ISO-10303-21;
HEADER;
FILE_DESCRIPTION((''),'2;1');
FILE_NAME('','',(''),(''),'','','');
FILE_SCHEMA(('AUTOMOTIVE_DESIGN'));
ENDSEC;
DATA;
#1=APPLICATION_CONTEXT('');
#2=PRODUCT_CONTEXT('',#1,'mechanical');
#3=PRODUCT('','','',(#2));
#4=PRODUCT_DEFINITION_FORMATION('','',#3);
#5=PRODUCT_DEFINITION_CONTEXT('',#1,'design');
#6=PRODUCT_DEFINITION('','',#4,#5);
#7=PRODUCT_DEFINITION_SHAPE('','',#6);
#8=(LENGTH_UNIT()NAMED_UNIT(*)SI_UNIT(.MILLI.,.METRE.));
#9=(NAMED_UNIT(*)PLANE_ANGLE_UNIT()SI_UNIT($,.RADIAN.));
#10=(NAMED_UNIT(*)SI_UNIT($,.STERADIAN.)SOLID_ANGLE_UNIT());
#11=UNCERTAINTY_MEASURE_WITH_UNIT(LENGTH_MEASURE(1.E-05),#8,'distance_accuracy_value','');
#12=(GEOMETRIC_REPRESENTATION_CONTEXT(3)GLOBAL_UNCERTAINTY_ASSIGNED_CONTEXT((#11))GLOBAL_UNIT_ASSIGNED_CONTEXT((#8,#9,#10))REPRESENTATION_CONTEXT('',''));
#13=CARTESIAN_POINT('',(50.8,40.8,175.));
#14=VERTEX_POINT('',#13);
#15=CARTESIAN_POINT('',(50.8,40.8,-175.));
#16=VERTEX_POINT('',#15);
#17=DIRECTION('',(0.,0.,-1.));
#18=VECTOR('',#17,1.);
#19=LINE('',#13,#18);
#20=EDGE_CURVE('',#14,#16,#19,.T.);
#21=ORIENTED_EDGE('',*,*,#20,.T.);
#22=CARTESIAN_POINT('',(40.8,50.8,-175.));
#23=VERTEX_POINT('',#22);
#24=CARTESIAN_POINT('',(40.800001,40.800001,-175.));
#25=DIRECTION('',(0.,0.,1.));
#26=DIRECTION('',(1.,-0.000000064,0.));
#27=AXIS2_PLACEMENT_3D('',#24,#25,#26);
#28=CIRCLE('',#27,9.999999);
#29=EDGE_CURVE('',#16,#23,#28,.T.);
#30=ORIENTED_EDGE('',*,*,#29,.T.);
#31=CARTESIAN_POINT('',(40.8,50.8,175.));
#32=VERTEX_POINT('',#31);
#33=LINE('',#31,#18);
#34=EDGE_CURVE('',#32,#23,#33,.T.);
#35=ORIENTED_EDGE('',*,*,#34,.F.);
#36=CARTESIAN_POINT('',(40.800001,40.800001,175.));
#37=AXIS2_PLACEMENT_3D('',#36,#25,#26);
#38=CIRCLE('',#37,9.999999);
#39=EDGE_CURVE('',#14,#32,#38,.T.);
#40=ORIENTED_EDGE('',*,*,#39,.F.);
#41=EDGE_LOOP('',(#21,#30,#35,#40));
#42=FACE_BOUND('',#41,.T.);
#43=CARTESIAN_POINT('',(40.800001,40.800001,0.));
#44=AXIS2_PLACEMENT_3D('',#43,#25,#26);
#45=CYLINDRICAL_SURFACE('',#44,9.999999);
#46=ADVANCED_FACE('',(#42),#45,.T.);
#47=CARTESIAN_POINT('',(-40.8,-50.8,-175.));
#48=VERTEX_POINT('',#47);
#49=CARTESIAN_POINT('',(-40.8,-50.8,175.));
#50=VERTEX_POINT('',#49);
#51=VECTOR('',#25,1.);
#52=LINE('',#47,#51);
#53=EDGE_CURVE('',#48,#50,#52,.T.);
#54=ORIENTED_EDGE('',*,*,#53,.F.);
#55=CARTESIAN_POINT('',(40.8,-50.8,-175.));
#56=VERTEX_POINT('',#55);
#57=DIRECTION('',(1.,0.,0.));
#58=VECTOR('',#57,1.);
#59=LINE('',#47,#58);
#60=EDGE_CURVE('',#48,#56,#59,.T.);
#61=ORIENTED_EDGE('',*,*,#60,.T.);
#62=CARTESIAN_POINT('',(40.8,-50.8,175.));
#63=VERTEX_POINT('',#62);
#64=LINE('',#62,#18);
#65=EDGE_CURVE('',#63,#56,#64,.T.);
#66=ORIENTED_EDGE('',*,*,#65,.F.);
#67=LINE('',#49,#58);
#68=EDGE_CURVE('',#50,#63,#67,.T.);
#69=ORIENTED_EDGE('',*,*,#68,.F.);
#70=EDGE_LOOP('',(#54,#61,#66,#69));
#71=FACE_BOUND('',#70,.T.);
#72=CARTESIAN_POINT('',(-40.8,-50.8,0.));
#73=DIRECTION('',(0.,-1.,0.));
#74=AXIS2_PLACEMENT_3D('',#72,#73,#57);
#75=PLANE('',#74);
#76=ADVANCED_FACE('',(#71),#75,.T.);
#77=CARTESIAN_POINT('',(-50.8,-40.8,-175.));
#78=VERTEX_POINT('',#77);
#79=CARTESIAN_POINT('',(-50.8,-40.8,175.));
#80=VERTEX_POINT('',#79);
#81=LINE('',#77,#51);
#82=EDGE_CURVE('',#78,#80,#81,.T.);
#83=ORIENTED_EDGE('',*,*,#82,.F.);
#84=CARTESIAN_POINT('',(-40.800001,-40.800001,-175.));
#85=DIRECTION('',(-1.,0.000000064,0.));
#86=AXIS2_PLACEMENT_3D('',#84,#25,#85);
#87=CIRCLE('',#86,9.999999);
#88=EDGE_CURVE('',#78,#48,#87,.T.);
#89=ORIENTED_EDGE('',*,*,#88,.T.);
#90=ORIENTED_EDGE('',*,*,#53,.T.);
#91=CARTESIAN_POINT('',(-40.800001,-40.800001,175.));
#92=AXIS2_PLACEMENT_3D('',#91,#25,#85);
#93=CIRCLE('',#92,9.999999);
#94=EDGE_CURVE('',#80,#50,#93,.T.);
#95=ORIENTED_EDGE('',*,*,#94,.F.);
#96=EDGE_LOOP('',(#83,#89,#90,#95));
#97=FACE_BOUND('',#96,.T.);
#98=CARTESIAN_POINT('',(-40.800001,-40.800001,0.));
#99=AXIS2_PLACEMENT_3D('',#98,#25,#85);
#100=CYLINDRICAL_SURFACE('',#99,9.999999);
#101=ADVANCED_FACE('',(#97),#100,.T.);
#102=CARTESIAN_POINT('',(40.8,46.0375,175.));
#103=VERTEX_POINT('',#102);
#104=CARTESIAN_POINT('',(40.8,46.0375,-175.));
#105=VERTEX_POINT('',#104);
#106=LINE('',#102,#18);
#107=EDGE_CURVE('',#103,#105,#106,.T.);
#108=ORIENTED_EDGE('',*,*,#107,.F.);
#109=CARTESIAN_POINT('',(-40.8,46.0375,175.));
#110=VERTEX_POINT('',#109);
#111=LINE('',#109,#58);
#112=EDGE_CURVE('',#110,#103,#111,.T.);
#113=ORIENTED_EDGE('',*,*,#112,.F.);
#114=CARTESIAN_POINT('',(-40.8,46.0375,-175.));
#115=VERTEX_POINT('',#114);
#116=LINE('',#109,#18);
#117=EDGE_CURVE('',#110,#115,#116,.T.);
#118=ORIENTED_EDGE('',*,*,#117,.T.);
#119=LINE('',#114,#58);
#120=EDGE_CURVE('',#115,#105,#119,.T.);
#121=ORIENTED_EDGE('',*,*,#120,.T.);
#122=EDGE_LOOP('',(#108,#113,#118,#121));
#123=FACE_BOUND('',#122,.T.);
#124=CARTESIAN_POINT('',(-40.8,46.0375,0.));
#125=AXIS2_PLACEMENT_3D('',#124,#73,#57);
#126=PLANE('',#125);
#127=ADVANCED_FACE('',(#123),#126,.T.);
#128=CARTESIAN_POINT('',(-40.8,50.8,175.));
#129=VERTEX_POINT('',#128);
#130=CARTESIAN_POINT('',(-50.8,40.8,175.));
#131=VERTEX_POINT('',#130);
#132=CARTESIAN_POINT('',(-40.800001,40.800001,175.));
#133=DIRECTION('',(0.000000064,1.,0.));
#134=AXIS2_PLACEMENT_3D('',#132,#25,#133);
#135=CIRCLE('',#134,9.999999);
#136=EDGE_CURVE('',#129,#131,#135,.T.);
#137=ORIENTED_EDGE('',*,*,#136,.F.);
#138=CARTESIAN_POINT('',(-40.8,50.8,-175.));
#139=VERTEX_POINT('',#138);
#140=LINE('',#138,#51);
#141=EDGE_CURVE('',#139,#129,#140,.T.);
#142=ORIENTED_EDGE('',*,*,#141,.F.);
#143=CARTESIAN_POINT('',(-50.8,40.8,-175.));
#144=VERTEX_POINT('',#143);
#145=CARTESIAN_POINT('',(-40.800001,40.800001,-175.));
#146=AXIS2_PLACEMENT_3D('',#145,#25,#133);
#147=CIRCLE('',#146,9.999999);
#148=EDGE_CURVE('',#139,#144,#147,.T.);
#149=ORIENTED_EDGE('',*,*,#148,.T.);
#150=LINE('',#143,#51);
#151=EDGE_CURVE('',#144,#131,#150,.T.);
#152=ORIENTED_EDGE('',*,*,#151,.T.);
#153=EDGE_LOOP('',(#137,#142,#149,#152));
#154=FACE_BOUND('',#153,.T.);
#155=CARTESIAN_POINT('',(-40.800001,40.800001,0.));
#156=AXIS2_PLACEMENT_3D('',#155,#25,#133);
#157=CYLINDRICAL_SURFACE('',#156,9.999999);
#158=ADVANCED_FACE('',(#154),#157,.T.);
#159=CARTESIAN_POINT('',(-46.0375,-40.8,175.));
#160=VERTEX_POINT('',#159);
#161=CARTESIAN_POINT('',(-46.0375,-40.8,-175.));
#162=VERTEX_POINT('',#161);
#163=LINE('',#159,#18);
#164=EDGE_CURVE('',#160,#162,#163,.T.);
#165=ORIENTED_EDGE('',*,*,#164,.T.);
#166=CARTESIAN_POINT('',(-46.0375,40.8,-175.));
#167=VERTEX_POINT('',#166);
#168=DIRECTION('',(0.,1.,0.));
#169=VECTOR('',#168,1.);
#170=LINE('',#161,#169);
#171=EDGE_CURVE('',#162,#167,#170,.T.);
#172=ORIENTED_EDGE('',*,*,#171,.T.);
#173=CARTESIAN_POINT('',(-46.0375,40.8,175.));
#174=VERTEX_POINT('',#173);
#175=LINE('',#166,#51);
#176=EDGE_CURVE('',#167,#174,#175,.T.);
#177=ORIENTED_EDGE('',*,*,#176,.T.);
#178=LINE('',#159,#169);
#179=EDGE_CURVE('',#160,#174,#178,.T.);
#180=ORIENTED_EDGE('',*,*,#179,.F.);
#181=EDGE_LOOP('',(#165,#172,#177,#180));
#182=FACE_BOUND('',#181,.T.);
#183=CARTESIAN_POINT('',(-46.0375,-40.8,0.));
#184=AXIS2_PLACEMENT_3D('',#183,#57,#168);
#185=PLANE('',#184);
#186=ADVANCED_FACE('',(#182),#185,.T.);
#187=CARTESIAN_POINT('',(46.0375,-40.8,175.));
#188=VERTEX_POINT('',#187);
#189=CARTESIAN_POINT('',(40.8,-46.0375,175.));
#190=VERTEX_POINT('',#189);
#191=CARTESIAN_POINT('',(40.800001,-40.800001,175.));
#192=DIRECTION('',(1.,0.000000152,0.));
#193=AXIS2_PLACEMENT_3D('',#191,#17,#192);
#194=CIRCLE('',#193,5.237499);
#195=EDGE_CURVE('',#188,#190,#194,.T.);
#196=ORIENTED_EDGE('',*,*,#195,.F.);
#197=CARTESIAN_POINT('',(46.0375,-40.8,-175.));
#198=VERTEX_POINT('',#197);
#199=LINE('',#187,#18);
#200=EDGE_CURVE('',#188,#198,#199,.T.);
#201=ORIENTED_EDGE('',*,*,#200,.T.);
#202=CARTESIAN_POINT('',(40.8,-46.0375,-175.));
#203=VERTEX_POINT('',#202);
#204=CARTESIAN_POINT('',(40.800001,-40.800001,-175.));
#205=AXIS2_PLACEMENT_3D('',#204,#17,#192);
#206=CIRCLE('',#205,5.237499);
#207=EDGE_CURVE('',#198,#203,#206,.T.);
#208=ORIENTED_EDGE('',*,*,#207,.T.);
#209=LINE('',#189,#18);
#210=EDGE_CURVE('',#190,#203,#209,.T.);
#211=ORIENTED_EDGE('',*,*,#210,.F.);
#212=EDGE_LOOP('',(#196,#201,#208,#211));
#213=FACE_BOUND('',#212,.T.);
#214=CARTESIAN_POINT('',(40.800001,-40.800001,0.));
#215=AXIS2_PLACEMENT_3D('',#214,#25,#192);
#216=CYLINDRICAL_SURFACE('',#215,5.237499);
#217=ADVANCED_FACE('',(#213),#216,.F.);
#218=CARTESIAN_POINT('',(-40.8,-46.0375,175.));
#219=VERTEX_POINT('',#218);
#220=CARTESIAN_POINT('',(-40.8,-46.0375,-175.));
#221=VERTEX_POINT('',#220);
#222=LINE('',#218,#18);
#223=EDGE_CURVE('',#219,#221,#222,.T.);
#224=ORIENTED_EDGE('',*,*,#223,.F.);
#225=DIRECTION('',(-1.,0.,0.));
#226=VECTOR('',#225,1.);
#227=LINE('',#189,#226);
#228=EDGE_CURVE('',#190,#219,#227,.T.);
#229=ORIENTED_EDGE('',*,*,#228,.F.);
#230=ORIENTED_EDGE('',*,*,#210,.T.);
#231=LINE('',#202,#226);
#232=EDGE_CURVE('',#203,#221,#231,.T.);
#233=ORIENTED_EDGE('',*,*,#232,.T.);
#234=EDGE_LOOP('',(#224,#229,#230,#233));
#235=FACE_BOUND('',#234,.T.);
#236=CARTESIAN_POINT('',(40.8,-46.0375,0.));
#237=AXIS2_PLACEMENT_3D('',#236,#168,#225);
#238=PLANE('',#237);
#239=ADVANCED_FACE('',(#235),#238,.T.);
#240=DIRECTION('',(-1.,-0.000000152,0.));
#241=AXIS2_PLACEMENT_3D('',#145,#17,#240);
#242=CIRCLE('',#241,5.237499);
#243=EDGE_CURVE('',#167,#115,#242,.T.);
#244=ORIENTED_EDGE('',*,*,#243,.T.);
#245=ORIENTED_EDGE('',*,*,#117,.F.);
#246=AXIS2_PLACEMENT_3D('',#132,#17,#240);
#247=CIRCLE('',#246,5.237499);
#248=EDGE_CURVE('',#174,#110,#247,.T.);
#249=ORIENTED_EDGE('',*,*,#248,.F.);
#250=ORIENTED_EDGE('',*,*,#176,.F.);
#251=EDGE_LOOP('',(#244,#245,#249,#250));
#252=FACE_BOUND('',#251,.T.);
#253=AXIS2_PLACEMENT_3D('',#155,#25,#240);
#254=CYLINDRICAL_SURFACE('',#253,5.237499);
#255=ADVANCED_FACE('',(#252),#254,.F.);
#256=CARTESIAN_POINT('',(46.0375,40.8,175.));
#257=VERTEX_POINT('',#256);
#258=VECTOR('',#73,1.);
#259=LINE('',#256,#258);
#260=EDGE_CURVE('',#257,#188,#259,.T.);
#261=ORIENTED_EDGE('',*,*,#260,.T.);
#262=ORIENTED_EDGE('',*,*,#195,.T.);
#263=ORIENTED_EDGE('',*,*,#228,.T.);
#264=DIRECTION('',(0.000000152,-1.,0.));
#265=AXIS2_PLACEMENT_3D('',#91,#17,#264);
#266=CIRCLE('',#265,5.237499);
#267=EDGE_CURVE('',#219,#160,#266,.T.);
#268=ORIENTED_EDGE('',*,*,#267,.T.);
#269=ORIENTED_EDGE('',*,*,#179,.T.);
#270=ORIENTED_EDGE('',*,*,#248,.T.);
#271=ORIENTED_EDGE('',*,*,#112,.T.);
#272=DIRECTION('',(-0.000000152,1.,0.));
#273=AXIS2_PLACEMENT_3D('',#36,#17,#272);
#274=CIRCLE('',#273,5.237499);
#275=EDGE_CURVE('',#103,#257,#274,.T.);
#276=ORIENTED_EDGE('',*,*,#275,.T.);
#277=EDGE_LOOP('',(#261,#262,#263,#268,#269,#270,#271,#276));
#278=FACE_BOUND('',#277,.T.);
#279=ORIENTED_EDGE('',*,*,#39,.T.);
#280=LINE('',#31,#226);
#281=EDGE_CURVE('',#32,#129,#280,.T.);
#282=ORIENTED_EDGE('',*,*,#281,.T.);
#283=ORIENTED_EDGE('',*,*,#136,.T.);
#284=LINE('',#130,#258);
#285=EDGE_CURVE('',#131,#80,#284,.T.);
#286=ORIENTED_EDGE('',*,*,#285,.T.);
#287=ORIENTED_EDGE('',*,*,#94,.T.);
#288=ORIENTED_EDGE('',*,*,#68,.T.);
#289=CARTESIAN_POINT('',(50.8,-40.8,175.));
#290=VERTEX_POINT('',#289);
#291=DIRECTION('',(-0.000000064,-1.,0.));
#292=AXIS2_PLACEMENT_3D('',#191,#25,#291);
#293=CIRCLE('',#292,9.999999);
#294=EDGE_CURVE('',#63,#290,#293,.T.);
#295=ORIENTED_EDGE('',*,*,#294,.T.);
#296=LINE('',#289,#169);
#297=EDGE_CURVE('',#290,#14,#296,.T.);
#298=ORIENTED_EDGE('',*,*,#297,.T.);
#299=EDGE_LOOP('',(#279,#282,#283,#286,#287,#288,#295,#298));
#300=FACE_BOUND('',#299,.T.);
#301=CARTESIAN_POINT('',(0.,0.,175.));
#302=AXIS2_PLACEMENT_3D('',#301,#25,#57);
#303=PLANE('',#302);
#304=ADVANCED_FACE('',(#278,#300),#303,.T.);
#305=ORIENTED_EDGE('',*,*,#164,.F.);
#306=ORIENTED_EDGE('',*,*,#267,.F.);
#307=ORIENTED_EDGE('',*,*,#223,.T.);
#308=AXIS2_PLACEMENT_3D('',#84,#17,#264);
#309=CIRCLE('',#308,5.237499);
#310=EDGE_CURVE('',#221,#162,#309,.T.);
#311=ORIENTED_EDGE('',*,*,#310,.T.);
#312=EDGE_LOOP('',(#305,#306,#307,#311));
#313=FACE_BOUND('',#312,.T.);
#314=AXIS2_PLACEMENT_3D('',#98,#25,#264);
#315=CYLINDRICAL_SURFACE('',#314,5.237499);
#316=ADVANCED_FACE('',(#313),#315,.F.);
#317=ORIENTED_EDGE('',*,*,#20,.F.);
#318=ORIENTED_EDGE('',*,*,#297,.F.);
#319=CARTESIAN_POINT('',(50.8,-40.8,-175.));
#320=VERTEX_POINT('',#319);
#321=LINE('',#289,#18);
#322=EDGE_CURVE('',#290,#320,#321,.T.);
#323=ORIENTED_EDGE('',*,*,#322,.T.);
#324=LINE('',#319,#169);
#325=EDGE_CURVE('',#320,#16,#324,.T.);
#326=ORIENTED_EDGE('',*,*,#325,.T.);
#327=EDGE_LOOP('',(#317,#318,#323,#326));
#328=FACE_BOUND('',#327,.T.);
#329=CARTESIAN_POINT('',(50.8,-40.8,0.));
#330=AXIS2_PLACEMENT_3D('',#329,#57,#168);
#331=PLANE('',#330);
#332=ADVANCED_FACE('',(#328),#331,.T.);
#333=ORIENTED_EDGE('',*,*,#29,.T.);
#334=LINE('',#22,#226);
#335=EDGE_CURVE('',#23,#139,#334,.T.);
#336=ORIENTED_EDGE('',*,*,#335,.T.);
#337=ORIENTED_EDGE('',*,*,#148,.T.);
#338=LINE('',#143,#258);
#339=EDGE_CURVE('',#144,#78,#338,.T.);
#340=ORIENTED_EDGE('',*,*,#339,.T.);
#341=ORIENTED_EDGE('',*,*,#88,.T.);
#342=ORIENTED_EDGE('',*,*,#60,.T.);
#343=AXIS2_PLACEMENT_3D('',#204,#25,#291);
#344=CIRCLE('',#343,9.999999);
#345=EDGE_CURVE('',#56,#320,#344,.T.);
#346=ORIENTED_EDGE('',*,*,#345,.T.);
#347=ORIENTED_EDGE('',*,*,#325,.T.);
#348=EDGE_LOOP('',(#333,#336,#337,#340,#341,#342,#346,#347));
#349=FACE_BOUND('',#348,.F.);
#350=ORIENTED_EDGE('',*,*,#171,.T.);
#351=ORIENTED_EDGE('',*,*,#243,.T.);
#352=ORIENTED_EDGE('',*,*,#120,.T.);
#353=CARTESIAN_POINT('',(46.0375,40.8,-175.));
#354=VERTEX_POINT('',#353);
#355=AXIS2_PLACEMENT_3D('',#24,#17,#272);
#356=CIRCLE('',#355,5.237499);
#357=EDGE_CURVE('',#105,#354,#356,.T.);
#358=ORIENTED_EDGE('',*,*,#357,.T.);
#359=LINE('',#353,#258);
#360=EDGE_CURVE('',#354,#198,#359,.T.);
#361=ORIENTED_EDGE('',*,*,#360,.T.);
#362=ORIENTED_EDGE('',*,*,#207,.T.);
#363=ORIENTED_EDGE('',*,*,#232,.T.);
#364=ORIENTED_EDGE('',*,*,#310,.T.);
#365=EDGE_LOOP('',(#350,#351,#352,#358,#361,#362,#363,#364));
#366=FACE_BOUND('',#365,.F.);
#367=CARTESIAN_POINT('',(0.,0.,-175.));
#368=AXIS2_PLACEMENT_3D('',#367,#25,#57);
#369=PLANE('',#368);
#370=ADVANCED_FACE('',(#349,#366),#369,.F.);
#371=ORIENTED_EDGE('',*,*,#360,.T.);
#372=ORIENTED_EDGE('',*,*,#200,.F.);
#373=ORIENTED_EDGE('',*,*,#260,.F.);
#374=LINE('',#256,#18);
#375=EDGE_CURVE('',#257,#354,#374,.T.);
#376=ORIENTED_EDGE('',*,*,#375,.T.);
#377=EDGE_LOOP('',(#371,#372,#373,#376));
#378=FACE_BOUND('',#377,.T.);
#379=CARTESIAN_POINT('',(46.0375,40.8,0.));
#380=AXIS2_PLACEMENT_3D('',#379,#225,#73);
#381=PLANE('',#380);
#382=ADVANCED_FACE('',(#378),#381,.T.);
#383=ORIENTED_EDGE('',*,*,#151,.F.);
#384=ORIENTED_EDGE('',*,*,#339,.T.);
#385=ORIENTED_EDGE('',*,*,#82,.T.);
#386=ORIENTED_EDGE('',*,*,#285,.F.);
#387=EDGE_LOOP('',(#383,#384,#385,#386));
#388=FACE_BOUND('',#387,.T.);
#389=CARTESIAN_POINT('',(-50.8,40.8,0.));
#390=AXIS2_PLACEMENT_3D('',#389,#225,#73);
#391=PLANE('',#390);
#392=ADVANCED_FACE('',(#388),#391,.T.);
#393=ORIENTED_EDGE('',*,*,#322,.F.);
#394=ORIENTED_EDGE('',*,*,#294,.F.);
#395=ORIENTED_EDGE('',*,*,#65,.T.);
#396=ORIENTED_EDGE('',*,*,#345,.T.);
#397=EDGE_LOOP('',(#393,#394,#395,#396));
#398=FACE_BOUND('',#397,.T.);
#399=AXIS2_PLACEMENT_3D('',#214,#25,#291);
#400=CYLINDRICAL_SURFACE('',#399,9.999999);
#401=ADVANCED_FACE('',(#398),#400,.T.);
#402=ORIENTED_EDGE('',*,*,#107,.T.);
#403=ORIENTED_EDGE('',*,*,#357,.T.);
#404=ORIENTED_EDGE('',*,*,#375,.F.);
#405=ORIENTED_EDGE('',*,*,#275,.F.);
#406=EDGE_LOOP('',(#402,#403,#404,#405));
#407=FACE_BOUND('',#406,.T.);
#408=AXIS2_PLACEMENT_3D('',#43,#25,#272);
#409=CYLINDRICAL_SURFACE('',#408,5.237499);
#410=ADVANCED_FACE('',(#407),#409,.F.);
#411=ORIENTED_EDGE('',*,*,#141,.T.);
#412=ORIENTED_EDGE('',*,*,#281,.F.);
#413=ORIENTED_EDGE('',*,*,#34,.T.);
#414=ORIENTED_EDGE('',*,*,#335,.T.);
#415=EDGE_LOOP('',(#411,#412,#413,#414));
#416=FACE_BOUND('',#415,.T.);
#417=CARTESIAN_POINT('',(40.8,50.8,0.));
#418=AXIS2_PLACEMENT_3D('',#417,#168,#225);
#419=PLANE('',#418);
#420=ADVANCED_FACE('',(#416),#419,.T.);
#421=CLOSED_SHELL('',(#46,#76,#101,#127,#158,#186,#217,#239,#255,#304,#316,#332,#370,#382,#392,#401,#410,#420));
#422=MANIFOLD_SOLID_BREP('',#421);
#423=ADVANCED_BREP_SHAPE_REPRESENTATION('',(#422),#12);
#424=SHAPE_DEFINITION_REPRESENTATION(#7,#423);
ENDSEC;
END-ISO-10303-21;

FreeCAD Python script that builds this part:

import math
import FreeCAD as App
import Part
import Sketcher

doc = App.newDocument("Part")
params = doc.addObject("Spreadsheet::Sheet", "Params")
for row, (alias, value) in enumerate([
    ("sketch1_radius", "9.999999 mm"),
    ("sketch1_width", "81.6 mm"),
    ("pad1_length", "350 mm"),
], start=1):
    params.set(f"A{row}", alias)
    params.set(f"B{row}", "=" + value)
    params.setAlias(f"B{row}", alias)

body = doc.addObject("PartDesign::Body", "Body")

sketch1 = doc.addObject("Sketcher::SketchObject", "Sketch")
body.addObject(sketch1)
sketch1.AttachmentSupport = (doc.XY_Plane, [""])
sketch1.MapMode = "FlatFace"
sketch1.addGeometry([
    Part.LineSegment(App.Vector(40.8, 50.8, 0), App.Vector(-40.8, 50.8, 0)),
    Part.ArcOfCircle(Part.Circle(App.Vector(-40.800001, 40.800001, 0), App.Vector(0, 0, 1), 9.999999), math.radians(89.999996), math.radians(180.000004)),
    Part.LineSegment(App.Vector(-50.8, 40.8, 0), App.Vector(-50.8, -40.8, 0)),
    Part.ArcOfCircle(Part.Circle(App.Vector(-40.800001, -40.800001, 0), App.Vector(0, 0, 1), 9.999999), math.radians(179.999996), math.radians(270.000004)),
    Part.LineSegment(App.Vector(-40.8, -50.8, 0), App.Vector(40.8, -50.8, 0)),
    Part.ArcOfCircle(Part.Circle(App.Vector(40.800001, -40.800001, 0), App.Vector(0, 0, 1), 9.999999), math.radians(-90.000004), math.radians(0.000004)),
    Part.LineSegment(App.Vector(50.8, -40.8, 0), App.Vector(50.8, 40.8, 0)),
    Part.ArcOfCircle(Part.Circle(App.Vector(40.800001, 40.800001, 0), App.Vector(0, 0, 1), 9.999999), math.radians(-0.000004), math.radians(90.000004)),
    Part.LineSegment(App.Vector(-46.0375, -40.8, 0), App.Vector(-46.0375, 40.8, 0)),
    Part.ArcOfCircle(Part.Circle(App.Vector(-40.800001, 40.800001, 0), App.Vector(0, 0, 1), 5.237499), math.radians(89.999991), math.radians(180.000009)),
    Part.LineSegment(App.Vector(-40.8, 46.0375, 0), App.Vector(40.8, 46.0375, 0)),
    Part.ArcOfCircle(Part.Circle(App.Vector(40.800001, 40.800001, 0), App.Vector(0, 0, 1), 5.237499), math.radians(-0.000009), math.radians(90.000009)),
    Part.LineSegment(App.Vector(46.0375, 40.8, 0), App.Vector(46.0375, -40.8, 0)),
    Part.ArcOfCircle(Part.Circle(App.Vector(40.800001, -40.800001, 0), App.Vector(0, 0, 1), 5.237499), math.radians(-90.000009), math.radians(0.000009)),
    Part.LineSegment(App.Vector(40.8, -46.0375, 0), App.Vector(-40.8, -46.0375, 0)),
    Part.ArcOfCircle(Part.Circle(App.Vector(-40.800001, -40.800001, 0), App.Vector(0, 0, 1), 5.237499), math.radians(179.999991), math.radians(270.000009)),
], False)
sketch1.addConstraint([
    Sketcher.Constraint("Tangent", 0, 2, 1, 1),
    Sketcher.Constraint("Tangent", 1, 2, 2, 1),
    Sketcher.Constraint("Tangent", 2, 2, 3, 1),
    Sketcher.Constraint("Tangent", 3, 2, 4, 1),
    Sketcher.Constraint("Tangent", 4, 2, 5, 1),
    Sketcher.Constraint("Tangent", 5, 2, 6, 1),
    Sketcher.Constraint("Tangent", 6, 2, 7, 1),
    Sketcher.Constraint("Tangent", 7, 2, 0, 1),
    Sketcher.Constraint("Tangent", 8, 2, 9, 2),
    Sketcher.Constraint("Tangent", 9, 1, 10, 1),
    Sketcher.Constraint("Tangent", 10, 2, 11, 2),
    Sketcher.Constraint("Tangent", 11, 1, 12, 1),
    Sketcher.Constraint("Tangent", 12, 2, 13, 2),
    Sketcher.Constraint("Tangent", 13, 1, 14, 1),
    Sketcher.Constraint("Tangent", 14, 2, 15, 2),
    Sketcher.Constraint("Tangent", 15, 1, 8, 1),
    Sketcher.Constraint("Horizontal", 0),
    Sketcher.Constraint("Vertical", 2),
    Sketcher.Constraint("Horizontal", 4),
    Sketcher.Constraint("Vertical", 6),
    Sketcher.Constraint("Vertical", 8),
    Sketcher.Constraint("Horizontal", 10),
    Sketcher.Constraint("Vertical", 12),
    Sketcher.Constraint("Horizontal", 14),
    Sketcher.Constraint("Coincident", 9, 3, 1, 3),
    Sketcher.Constraint("Coincident", 11, 3, 7, 3),
    Sketcher.Constraint("Coincident", 13, 3, 5, 3),
    Sketcher.Constraint("Equal", 1, 3),
    Sketcher.Constraint("Equal", 3, 5),
    Sketcher.Constraint("Equal", 5, 7),
    Sketcher.Constraint("Equal", 13, 15),
    Sketcher.Constraint("Symmetric", 1, 3, 5, 3, -1, 1),
    Sketcher.Constraint("Equal", 14, 2),
    Sketcher.Constraint("Radius", 1, 9.999999),
    Sketcher.Constraint("DistanceX", 0, 2, 0, 1, 81.6),
    Sketcher.Constraint("Radius", 9, 5.237499),
])
sketch1.setExpression("Constraints[33]", "Params.sketch1_radius")
sketch1.setExpression("Constraints[34]", "Params.sketch1_width")
pad1 = doc.addObject("PartDesign::Pad", "Pad")
body.addObject(pad1)
pad1.Profile = sketch1
pad1.setExpression("Length", "Params.pad1_length")
pad1.Midplane = True

doc.recompute()
